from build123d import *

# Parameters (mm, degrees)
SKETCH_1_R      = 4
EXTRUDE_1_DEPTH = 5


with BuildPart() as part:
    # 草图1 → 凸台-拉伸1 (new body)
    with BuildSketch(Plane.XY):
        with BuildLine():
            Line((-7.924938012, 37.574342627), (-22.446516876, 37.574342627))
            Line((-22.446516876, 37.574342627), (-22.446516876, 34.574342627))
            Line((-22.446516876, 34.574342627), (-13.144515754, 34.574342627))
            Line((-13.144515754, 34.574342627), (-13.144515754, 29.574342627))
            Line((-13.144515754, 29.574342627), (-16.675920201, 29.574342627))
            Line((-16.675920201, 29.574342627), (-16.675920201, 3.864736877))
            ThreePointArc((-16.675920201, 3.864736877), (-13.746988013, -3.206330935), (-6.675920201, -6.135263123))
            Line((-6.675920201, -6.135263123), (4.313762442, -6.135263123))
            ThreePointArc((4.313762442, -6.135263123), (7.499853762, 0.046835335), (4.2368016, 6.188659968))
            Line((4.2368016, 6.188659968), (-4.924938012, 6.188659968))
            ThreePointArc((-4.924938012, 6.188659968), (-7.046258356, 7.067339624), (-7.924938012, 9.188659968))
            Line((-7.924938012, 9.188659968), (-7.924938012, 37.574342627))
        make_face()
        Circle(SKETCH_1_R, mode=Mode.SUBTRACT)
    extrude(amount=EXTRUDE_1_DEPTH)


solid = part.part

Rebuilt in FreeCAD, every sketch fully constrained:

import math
import FreeCAD as App
import Part
import Sketcher
from FreeCAD import Vector
Q = App.Units.Quantity

doc = App.newDocument("Part")
params = doc.addObject("Spreadsheet::Sheet", "Params")
for row, (alias, value) in enumerate([
    ("sketch1_diameter", "8 mm"),
    ("sketch1_radius", "10 mm"),
    ("sketch1_radius2", "3 mm"),
    ("sketch1_radius3", "7.5 mm"),
    ("sketch1_height", "3 mm"),
    ("pad1_length", "5 mm"),
], start=1):
    params.set(f"A{row}", alias)
    params.set(f"B{row}", "=" + value)
    params.setAlias(f"B{row}", alias)

body = doc.addObject("PartDesign::Body", "Body")

# Sketch on XY plane
sketch1 = doc.addObject("Sketcher::SketchObject", "Sketch")
body.addObject(sketch1)
sketch1.AttachmentSupport = (doc.XY_Plane, [""])
sketch1.MapMode = "FlatFace"
sketch1.addGeometry([
    Part.LineSegment(Vector(-7.924938, 37.574343, 0), Vector(-22.446517, 37.574343, 0)),  # 0
    Part.LineSegment(Vector(-22.446517, 37.574343, 0), Vector(-22.446517, 34.574343, 0)),  # 1
    Part.LineSegment(Vector(-22.446517, 34.574343, 0), Vector(-13.144516, 34.574343, 0)),  # 2
    Part.LineSegment(Vector(-13.144516, 34.574343, 0), Vector(-13.144516, 29.574343, 0)),  # 3
    Part.LineSegment(Vector(-13.144516, 29.574343, 0), Vector(-16.67592, 29.574343, 0)),  # 4
    Part.LineSegment(Vector(-16.67592, 29.574343, 0), Vector(-16.67592, 3.864737, 0)),  # 5
    Part.ArcOfCircle(Part.Circle(Vector(-6.67592, 3.864737, 0), Vector(0, 0, 1), 10), math.radians(180), math.radians(270)),  # 6
    Part.LineSegment(Vector(-6.67592, -6.135263, 0), Vector(4.313762, -6.135263, 0)),  # 7
    Part.ArcOfCircle(Part.Circle(Vector(0, 0, 0), Vector(0, 0, 1), 7.5), math.radians(-54.888579), math.radians(55.604175)),  # 8
    Part.LineSegment(Vector(4.236802, 6.18866, 0), Vector(-4.924938, 6.18866, 0)),  # 9
    Part.ArcOfCircle(Part.Circle(Vector(-4.924938, 9.18866, 0), Vector(0, 0, 1), 3), math.radians(180), math.radians(270)),  # 10
    Part.LineSegment(Vector(-7.924938, 9.18866, 0), Vector(-7.924938, 37.574343, 0)),  # 11
    Part.Circle(Vector(0, 0, 0), Vector(0, 0, 1), 4),  # 12
], False)
sketch1.addConstraint([
    Sketcher.Constraint("Coincident", 0, 2, 1, 1),
    Sketcher.Constraint("Coincident", 1, 2, 2, 1),
    Sketcher.Constraint("Coincident", 2, 2, 3, 1),
    Sketcher.Constraint("Coincident", 3, 2, 4, 1),
    Sketcher.Constraint("Coincident", 4, 2, 5, 1),
    Sketcher.Constraint("Tangent", 5, 2, 6, 1),
    Sketcher.Constraint("Tangent", 6, 2, 7, 1),
    Sketcher.Constraint("Coincident", 7, 2, 8, 1),
    Sketcher.Constraint("Coincident", 8, 2, 9, 1),
    Sketcher.Constraint("Tangent", 9, 2, 10, 2),
    Sketcher.Constraint("Tangent", 10, 1, 11, 1),
    Sketcher.Constraint("Coincident", 11, 2, 0, 1),
    Sketcher.Constraint("Horizontal", 0),
    Sketcher.Constraint("Vertical", 1),
    Sketcher.Constraint("Horizontal", 2),
    Sketcher.Constraint("Vertical", 3),
    Sketcher.Constraint("Horizontal", 4),
    Sketcher.Constraint("Vertical", 5),
    Sketcher.Constraint("Horizontal", 7),
    Sketcher.Constraint("Horizontal", 9),
    Sketcher.Constraint("Vertical", 11),
    Sketcher.Constraint("Coincident", 8, 3, -1, 1),
    Sketcher.Constraint("Coincident", 12, 3, -1, 1),
    Sketcher.Constraint("Diameter", 12, Q("8 mm")),
    Sketcher.Constraint("Radius", 6, Q("10 mm")),
    Sketcher.Constraint("Radius", 10, Q("3 mm")),
    Sketcher.Constraint("Radius", 8, Q("7.5 mm")),
    Sketcher.Constraint("DistanceY", 1, 2, 1, 1, Q("3 mm")),
    Sketcher.Constraint("DistanceY", 3, 2, 3, 1, Q("5 mm")),
    Sketcher.Constraint("DistanceX", 2, 1, 2, 2, Q("9.302001 mm")),
    Sketcher.Constraint("DistanceX", 0, 2, 0, 1, Q("14.521579 mm")),
    Sketcher.Constraint("DistanceX", 9, 2, 9, 1, Q("9.16174 mm")),
    Sketcher.Constraint("DistanceX", -1, 1, 8, 2, Q("4.236802 mm")),
    Sketcher.Constraint("DistanceX", 10, 3, 7, 2, Q("9.2387 mm")),
    Sketcher.Constraint("DistanceX", 4, 2, 4, 1, Q("3.531404 mm")),
    Sketcher.Constraint("DistanceY", 5, 2, 5, 1, Q("25.709606 mm")),
])
sketch1.setExpression("Constraints[23]", "Params.sketch1_diameter")
sketch1.setExpression("Constraints[24]", "Params.sketch1_radius")
sketch1.setExpression("Constraints[25]", "Params.sketch1_radius2")
sketch1.setExpression("Constraints[26]", "Params.sketch1_radius3")
sketch1.setExpression("Constraints[27]", "Params.sketch1_height")
pad1 = doc.addObject("PartDesign::Pad", "Pad")
body.addObject(pad1)
pad1.Profile = sketch1
pad1.setExpression("Length", "Params.pad1_length")

doc.recompute()
